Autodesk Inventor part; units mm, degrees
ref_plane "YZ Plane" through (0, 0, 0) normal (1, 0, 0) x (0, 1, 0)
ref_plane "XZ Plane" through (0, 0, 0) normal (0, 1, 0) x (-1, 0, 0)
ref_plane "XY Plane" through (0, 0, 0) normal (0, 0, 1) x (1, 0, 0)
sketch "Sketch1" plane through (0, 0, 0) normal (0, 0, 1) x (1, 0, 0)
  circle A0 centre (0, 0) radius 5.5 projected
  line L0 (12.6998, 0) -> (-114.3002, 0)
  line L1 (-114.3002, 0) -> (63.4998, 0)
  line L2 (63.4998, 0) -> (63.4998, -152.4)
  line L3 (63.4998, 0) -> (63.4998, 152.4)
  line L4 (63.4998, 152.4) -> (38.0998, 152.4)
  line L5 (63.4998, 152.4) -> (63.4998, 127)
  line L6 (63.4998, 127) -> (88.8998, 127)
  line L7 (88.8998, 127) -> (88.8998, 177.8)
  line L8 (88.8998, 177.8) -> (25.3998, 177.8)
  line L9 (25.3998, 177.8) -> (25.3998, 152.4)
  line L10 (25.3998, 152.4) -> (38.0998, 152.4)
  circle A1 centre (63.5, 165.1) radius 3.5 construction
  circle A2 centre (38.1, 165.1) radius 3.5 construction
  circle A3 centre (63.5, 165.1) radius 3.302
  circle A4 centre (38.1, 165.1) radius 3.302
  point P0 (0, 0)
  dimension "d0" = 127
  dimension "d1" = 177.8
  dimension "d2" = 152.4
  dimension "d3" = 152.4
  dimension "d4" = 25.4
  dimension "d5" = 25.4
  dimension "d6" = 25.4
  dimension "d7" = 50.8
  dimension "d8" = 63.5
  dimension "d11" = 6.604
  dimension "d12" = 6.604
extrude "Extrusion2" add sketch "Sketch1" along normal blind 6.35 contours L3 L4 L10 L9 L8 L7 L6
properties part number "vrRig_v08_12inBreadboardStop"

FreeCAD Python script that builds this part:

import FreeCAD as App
import Part
import Sketcher
from FreeCAD import Vector
Q = App.Units.Quantity


def add_polygon(sketch, points):
    """Adds a closed chain of lines whose ends are joined by coincident constraints."""
    first, n = sketch.GeometryCount, len(points)
    for a, b in zip(points, points[1:] + points[:1]):
        sketch.addGeometry(Part.LineSegment(App.Vector(*a, 0), App.Vector(*b, 0)), False)
    for i in range(n):
        sketch.addConstraint(Sketcher.Constraint("Coincident", first + i, 2, first + (i + 1) % n, 1))

doc = App.newDocument("Part")
params = doc.addObject("Spreadsheet::Sheet", "Params")
for row, (alias, value) in enumerate([
    ("sketch1_diameter", "0.26 in"),
    ("sketch1_width", "1 in"),
    ("sketch1_width2", "2.5 in"),
    ("pad1_length", "0.25 in"),
], start=1):
    params.set(f"A{row}", alias)
    params.set(f"B{row}", "=" + value)
    params.setAlias(f"B{row}", alias)

body = doc.addObject("PartDesign::Body", "Body")

# Sketch on XY plane
sketch1 = body.newObject("Sketcher::SketchObject", "Sketch")
sketch1.AttachmentSupport = (doc.getObject("XY_Plane"), [""])
sketch1.MapMode = "FlatFace"
add_polygon(sketch1, [(63.5, 152.4), (63.5, 127), (88.9, 127), (88.9, 177.8), (25.4, 177.8), (25.4, 152.4)])  # lines 0-5
sketch1.addGeometry(Part.Circle(Vector(38.1, 165.1, 0), Vector(0, 0, 1), 3.3), False)  # 6
sketch1.addGeometry(Part.Circle(Vector(63.5, 165.1, 0), Vector(0, 0, 1), 3.3), False)  # 7
sketch1.addConstraint(Sketcher.Constraint("Vertical", 0))
sketch1.addConstraint(Sketcher.Constraint("Horizontal", 1))
sketch1.addConstraint(Sketcher.Constraint("Vertical", 2))
sketch1.addConstraint(Sketcher.Constraint("Horizontal", 3))
sketch1.addConstraint(Sketcher.Constraint("Vertical", 4))
sketch1.addConstraint(Sketcher.Constraint("Horizontal", 5))
sketch1.addConstraint(Sketcher.Constraint("Equal", 6, 7))
sketch1.addConstraint(Sketcher.Constraint("Horizontal", 6, 3, 7, 3))
sketch1.addConstraint(Sketcher.Constraint("Vertical", 7, 3, 0, 2))
sketch1.addConstraint(Sketcher.Constraint("Equal", 1, 0))
sketch1.addConstraint(Sketcher.Constraint("Equal", 0, 4))
sketch1.addConstraint(Sketcher.Constraint("Diameter", 6, Q("0.26 in")))
sketch1.addConstraint(Sketcher.Constraint("DistanceX", 1, 1, 1, 2, Q("1 in")))
sketch1.addConstraint(Sketcher.Constraint("DistanceX", 3, 2, 3, 1, Q("2.5 in")))
sketch1.addConstraint(Sketcher.Constraint("DistanceY", -1, 1, 0, 2, Q("5 in")))
sketch1.addConstraint(Sketcher.Constraint("DistanceX", -1, 1, 3, 2, Q("1 in")))
sketch1.addConstraint(Sketcher.Constraint("DistanceX", 6, 3, 7, 3, Q("1 in")))
sketch1.addConstraint(Sketcher.Constraint("DistanceY", -1, 1, 6, 3, Q("6.5 in")))
sketch1.setExpression("Constraints[17]", "Params.sketch1_diameter")
sketch1.setExpression("Constraints[18]", "Params.sketch1_width")
sketch1.setExpression("Constraints[19]", "Params.sketch1_width2")
pad1 = body.newObject("PartDesign::Pad", "Pad")
pad1.Profile = sketch1
pad1.setExpression("Length", "Params.pad1_length")

doc.recompute()
